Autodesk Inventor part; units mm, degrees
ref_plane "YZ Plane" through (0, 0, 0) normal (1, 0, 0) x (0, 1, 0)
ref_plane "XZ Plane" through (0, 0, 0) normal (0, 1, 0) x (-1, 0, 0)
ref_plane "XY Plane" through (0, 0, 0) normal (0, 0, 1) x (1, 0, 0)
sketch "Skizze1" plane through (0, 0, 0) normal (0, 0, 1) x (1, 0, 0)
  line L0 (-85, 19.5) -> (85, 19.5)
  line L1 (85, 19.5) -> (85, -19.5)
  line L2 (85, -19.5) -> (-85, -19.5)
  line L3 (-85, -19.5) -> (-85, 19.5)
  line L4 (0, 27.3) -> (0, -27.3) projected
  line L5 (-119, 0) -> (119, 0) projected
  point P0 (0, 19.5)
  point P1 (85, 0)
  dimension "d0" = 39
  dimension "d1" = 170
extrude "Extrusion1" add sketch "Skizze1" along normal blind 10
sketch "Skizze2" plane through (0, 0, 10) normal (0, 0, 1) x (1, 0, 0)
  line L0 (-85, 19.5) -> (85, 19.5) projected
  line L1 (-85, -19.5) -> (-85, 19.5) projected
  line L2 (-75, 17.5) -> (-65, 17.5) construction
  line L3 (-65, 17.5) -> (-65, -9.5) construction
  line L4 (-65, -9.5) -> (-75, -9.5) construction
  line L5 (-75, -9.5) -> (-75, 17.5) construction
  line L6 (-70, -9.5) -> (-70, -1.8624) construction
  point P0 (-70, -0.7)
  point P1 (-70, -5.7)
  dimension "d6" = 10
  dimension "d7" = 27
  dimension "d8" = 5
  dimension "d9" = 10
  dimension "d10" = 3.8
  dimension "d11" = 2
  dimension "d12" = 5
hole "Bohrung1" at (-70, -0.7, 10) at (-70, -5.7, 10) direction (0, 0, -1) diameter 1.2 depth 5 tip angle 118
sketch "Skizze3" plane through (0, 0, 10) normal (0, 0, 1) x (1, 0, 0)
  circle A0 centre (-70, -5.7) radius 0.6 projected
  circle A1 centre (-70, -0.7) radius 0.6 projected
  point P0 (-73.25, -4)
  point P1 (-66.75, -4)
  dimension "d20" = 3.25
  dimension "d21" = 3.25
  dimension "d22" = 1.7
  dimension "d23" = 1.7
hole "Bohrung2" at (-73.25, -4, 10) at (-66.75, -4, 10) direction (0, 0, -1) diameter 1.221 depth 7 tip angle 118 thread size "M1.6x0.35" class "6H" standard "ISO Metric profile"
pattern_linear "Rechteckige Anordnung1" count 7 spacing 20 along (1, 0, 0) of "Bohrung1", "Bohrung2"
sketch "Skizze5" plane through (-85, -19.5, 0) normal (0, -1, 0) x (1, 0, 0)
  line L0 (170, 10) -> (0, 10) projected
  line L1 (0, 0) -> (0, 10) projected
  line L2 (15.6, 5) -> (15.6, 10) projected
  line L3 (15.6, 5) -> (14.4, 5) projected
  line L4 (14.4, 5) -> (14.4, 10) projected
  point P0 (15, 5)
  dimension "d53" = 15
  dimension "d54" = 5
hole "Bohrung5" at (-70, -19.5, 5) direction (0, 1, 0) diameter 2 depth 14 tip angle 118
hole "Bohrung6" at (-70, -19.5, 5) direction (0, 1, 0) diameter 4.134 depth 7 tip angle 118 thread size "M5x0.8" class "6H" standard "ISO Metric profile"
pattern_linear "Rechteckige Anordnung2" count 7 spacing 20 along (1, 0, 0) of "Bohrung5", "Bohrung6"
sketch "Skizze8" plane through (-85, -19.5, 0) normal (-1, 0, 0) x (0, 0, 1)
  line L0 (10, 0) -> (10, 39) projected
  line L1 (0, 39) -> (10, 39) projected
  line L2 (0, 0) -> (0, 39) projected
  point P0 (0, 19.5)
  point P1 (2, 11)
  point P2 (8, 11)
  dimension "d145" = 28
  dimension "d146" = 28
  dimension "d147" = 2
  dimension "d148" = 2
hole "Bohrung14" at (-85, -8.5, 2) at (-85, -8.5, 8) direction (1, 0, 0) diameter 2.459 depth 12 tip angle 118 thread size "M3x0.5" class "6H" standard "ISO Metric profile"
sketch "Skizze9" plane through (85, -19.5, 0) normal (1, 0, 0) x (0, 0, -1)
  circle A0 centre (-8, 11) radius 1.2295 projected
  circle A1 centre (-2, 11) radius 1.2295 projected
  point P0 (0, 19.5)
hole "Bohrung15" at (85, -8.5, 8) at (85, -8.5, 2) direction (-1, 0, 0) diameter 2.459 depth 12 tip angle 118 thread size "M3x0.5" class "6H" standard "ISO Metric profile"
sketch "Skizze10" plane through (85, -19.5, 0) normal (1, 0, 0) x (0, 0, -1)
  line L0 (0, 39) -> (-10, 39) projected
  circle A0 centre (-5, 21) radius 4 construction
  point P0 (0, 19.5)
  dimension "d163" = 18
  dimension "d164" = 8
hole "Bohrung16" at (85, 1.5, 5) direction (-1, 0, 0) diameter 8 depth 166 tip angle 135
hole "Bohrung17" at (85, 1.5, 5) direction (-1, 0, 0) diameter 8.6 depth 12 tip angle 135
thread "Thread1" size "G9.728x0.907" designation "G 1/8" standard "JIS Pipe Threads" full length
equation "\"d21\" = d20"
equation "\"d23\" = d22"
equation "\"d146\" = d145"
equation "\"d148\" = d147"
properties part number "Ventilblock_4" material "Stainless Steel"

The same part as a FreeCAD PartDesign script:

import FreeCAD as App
import Part
import Sketcher

V = App.Vector

doc = App.newDocument("Part")
body = doc.addObject("PartDesign::Body", "Body")

# Sketch on XY plane
sketch1 = doc.addObject("Sketcher::SketchObject", "Sketch")
body.addObject(sketch1)
sketch1.AttachmentSupport = (doc.XY_Plane, [""])
sketch1.MapMode = "FlatFace"
sketch1.addGeometry(Part.LineSegment(V(-85, 20, 0), V(-85, -20, 0)), False)
sketch1.addGeometry(Part.LineSegment(V(-85, -20, 0), V(85, -20, 0)), False)
sketch1.addGeometry(Part.LineSegment(V(85, -20, 0), V(85, 20, 0)), False)
sketch1.addGeometry(Part.LineSegment(V(85, 20, 0), V(-85, 20, 0)), False)
sketch1.addConstraint(Sketcher.Constraint("Coincident", 0, 2, 1, 1))
sketch1.addConstraint(Sketcher.Constraint("Coincident", 1, 2, 2, 1))
sketch1.addConstraint(Sketcher.Constraint("Coincident", 2, 2, 3, 1))
sketch1.addConstraint(Sketcher.Constraint("Coincident", 3, 2, 0, 1))
sketch1.addConstraint(Sketcher.Constraint("Vertical", 0))
sketch1.addConstraint(Sketcher.Constraint("Horizontal", 1))
sketch1.addConstraint(Sketcher.Constraint("Vertical", 2))
sketch1.addConstraint(Sketcher.Constraint("Horizontal", 3))
sketch1.addConstraint(Sketcher.Constraint("Symmetric", 0, 2, 2, 2, -1, 1))
sketch1.addConstraint(Sketcher.Constraint("DistanceX", 1, 1, 1, 2, 170.0))
sketch1.addConstraint(Sketcher.Constraint("DistanceY", 0, 2, 0, 1, 39.0))
pad1 = doc.addObject("PartDesign::Pad", "Pad")
body.addObject(pad1)
pad1.Profile = sketch1
pad1.Length = 10

# Sketch on XY plane
sketch2 = doc.addObject("Sketcher::SketchObject", "Sketch001")
body.addObject(sketch2)
sketch2.AttachmentSupport = (doc.XY_Plane, [""])
sketch2.MapMode = "FlatFace"
sketch2.AttachmentOffset = App.Placement(V(0, 0, 10), App.Rotation())
sketch2.addGeometry(Part.Circle(V(-70, -0.7, 0), V(0, 0, 1), 0.6), False)
sketch2.addGeometry(Part.Circle(V(-70, -5.7, 0), V(0, 0, 1), 0.6), False)
sketch2.addConstraint(Sketcher.Constraint("Equal", 0, 1))
sketch2.addConstraint(Sketcher.Constraint("Vertical", 0, 3, 1, 3))
sketch2.addConstraint(Sketcher.Constraint("Diameter", 0, 1.2))
sketch2.addConstraint(Sketcher.Constraint("DistanceX", 0, 3, -1, 1, 70.0))
sketch2.addConstraint(Sketcher.Constraint("DistanceY", 1, 3, 0, 3, 5.0))
sketch2.addConstraint(Sketcher.Constraint("DistanceY", 0, 3, -1, 1, 0.7))
doc.recompute()
hole = doc.addObject("PartDesign::Hole", "Hole")
body.addObject(hole)
hole.Profile = sketch2
hole.ThreadType = "None"
hole.Diameter = 1.2
hole.DepthType = "Dimension"
hole.Depth = 5
hole.DrillPoint = "Angled"
hole.DrillPointAngle = 118

# Sketch on XY plane
sketch3 = doc.addObject("Sketcher::SketchObject", "Sketch002")
body.addObject(sketch3)
sketch3.AttachmentSupport = (doc.XY_Plane, [""])
sketch3.MapMode = "FlatFace"
sketch3.AttachmentOffset = App.Placement(V(0, 0, 10), App.Rotation())
sketch3.addGeometry(Part.Circle(V(-73.2, -4, 0), V(0, 0, 1), 0.6), False)
sketch3.addGeometry(Part.Circle(V(-66.8, -4, 0), V(0, 0, 1), 0.6), False)
sketch3.addConstraint(Sketcher.Constraint("Equal", 0, 1))
sketch3.addConstraint(Sketcher.Constraint("Horizontal", 0, 3, 1, 3))
sketch3.addConstraint(Sketcher.Constraint("Diameter", 0, 1.221))
sketch3.addConstraint(Sketcher.Constraint("DistanceY", 0, 3, -1, 1, 4.0))
sketch3.addConstraint(Sketcher.Constraint("DistanceX", 0, 3, 1, 3, 6.5))
sketch3.addConstraint(Sketcher.Constraint("DistanceX", 0, 3, -1, 1, 73.25))
doc.recompute()
hole2 = doc.addObject("PartDesign::Hole", "Hole001")
body.addObject(hole2)
hole2.Profile = sketch3
hole2.ThreadType = "None"
hole2.Diameter = 1.221
hole2.DepthType = "Dimension"
hole2.Depth = 7
hole2.DrillPoint = "Angled"
hole2.DrillPointAngle = 118
doc.recompute()

linearpattern = doc.addObject("PartDesign::LinearPattern", "LinearPattern")
body.addObject(linearpattern)
linearpattern.Originals = [hole, hole2]
linearpattern.Direction = (doc.X_Axis, [""])
linearpattern.Mode = "offset"
linearpattern.Offset = 20
linearpattern.Occurrences = 7
body.Tip = linearpattern

# Sketch on XZ plane
sketch4 = doc.addObject("Sketcher::SketchObject", "Sketch003")
body.addObject(sketch4)
sketch4.AttachmentSupport = (doc.XZ_Plane, [""])
sketch4.MapMode = "FlatFace"
sketch4.AttachmentOffset = App.Placement(V(0, 0, 19.5), App.Rotation())
sketch4.addGeometry(Part.Circle(V(-70, 5, 0), V(0, 0, 1), 1), False)
sketch4.addConstraint(Sketcher.Constraint("Diameter", 0, 2.0))
sketch4.addConstraint(Sketcher.Constraint("DistanceX", 0, 3, -1, 1, 70.0))
sketch4.addConstraint(Sketcher.Constraint("DistanceY", -1, 1, 0, 3, 5.0))
doc.recompute()
hole3 = doc.addObject("PartDesign::Hole", "Hole002")
body.addObject(hole3)
hole3.Profile = sketch4
hole3.ThreadType = "None"
hole3.Diameter = 2
hole3.DepthType = "Dimension"
hole3.Depth = 14
hole3.DrillPoint = "Angled"
hole3.DrillPointAngle = 118

# Sketch on XZ plane
sketch5 = doc.addObject("Sketcher::SketchObject", "Sketch004")
body.addObject(sketch5)
sketch5.AttachmentSupport = (doc.XZ_Plane, [""])
sketch5.MapMode = "FlatFace"
sketch5.AttachmentOffset = App.Placement(V(0, 0, 19.5), App.Rotation())
sketch5.addGeometry(Part.Circle(V(-70, 5, 0), V(0, 0, 1), 2.1), False)
sketch5.addConstraint(Sketcher.Constraint("Diameter", 0, 4.134))
sketch5.addConstraint(Sketcher.Constraint("DistanceX", 0, 3, -1, 1, 70.0))
sketch5.addConstraint(Sketcher.Constraint("DistanceY", -1, 1, 0, 3, 5.0))
doc.recompute()
hole4 = doc.addObject("PartDesign::Hole", "Hole003")
body.addObject(hole4)
hole4.Profile = sketch5
hole4.ThreadType = "None"
hole4.Diameter = 4.134
hole4.DepthType = "Dimension"
hole4.Depth = 7
hole4.DrillPoint = "Angled"
hole4.DrillPointAngle = 118
doc.recompute()

linearpattern2 = doc.addObject("PartDesign::LinearPattern", "LinearPattern001")
body.addObject(linearpattern2)
linearpattern2.Originals = [hole3, hole4]
linearpattern2.Direction = (doc.X_Axis, [""])
linearpattern2.Mode = "offset"
linearpattern2.Offset = 20
linearpattern2.Occurrences = 7
body.Tip = linearpattern2

# Sketch on YZ plane
sketch6 = doc.addObject("Sketcher::SketchObject", "Sketch005")
body.addObject(sketch6)
sketch6.AttachmentSupport = (doc.YZ_Plane, [""])
sketch6.MapMode = "FlatFace"
sketch6.AttachmentOffset = App.Placement(V(0, 0, -85), App.Rotation())
sketch6.addGeometry(Part.Circle(V(-8.5, 2, 0), V(0, 0, 1), 1.2), False)
sketch6.addGeometry(Part.Circle(V(-8.5, 8, 0), V(0, 0, 1), 1.2), False)
sketch6.addConstraint(Sketcher.Constraint("Equal", 0, 1))
sketch6.addConstraint(Sketcher.Constraint("Vertical", 0, 3, 1, 3))
sketch6.addConstraint(Sketcher.Constraint("Diameter", 0, 2.459))
sketch6.addConstraint(Sketcher.Constraint("DistanceY", -1, 1, 0, 3, 2.0))
sketch6.addConstraint(Sketcher.Constraint("DistanceY", -1, 1, 1, 3, 8.0))
sketch6.addConstraint(Sketcher.Constraint("DistanceX", 0, 3, -1, 1, 8.5))
doc.recompute()
hole5 = doc.addObject("PartDesign::Hole", "Hole004")
body.addObject(hole5)
hole5.Profile = sketch6
hole5.ThreadType = "None"
hole5.Diameter = 2.459
hole5.DepthType = "Dimension"
hole5.Depth = 12
hole5.DrillPoint = "Angled"
hole5.DrillPointAngle = 118
hole5.Reversed = True

# Sketch on YZ plane
sketch7 = doc.addObject("Sketcher::SketchObject", "Sketch006")
body.addObject(sketch7)
sketch7.AttachmentSupport = (doc.YZ_Plane, [""])
sketch7.MapMode = "FlatFace"
sketch7.AttachmentOffset = App.Placement(V(0, 0, 85), App.Rotation())
sketch7.addGeometry(Part.Circle(V(-8.5, 8, 0), V(0, 0, 1), 1.2), False)
sketch7.addGeometry(Part.Circle(V(-8.5, 2, 0), V(0, 0, 1), 1.2), False)
sketch7.addConstraint(Sketcher.Constraint("Equal", 0, 1))
sketch7.addConstraint(Sketcher.Constraint("Vertical", 0, 3, 1, 3))
sketch7.addConstraint(Sketcher.Constraint("Diameter", 0, 2.459))
sketch7.addConstraint(Sketcher.Constraint("DistanceY", -1, 1, 0, 3, 8.0))
sketch7.addConstraint(Sketcher.Constraint("DistanceY", -1, 1, 1, 3, 2.0))
sketch7.addConstraint(Sketcher.Constraint("DistanceX", 0, 3, -1, 1, 8.5))
doc.recompute()
hole6 = doc.addObject("PartDesign::Hole", "Hole005")
body.addObject(hole6)
hole6.Profile = sketch7
hole6.ThreadType = "None"
hole6.Diameter = 2.459
hole6.DepthType = "Dimension"
hole6.Depth = 12
hole6.DrillPoint = "Angled"
hole6.DrillPointAngle = 118

# Sketch on YZ plane
sketch8 = doc.addObject("Sketcher::SketchObject", "Sketch007")
body.addObject(sketch8)
sketch8.AttachmentSupport = (doc.YZ_Plane, [""])
sketch8.MapMode = "FlatFace"
sketch8.AttachmentOffset = App.Placement(V(0, 0, 85), App.Rotation())
sketch8.addGeometry(Part.Circle(V(1.5, 5, 0), V(0, 0, 1), 4), False)
sketch8.addConstraint(Sketcher.Constraint("Diameter", 0, 8.0))
sketch8.addConstraint(Sketcher.Constraint("DistanceY", -1, 1, 0, 3, 5.0))
sketch8.addConstraint(Sketcher.Constraint("DistanceX", -1, 1, 0, 3, 1.5))
doc.recompute()
hole7 = doc.addObject("PartDesign::Hole", "Hole006")
body.addObject(hole7)
hole7.Profile = sketch8
hole7.ThreadType = "None"
hole7.Diameter = 8
hole7.DepthType = "Dimension"
hole7.Depth = 166
hole7.DrillPoint = "Angled"
hole7.DrillPointAngle = 135

# Sketch on YZ plane
sketch9 = doc.addObject("Sketcher::SketchObject", "Sketch008")
body.addObject(sketch9)
sketch9.AttachmentSupport = (doc.YZ_Plane, [""])
sketch9.MapMode = "FlatFace"
sketch9.AttachmentOffset = App.Placement(V(0, 0, 85), App.Rotation())
sketch9.addGeometry(Part.Circle(V(1.5, 5, 0), V(0, 0, 1), 4.3), False)
sketch9.addConstraint(Sketcher.Constraint("Diameter", 0, 8.6))
sketch9.addConstraint(Sketcher.Constraint("DistanceY", -1, 1, 0, 3, 5.0))
sketch9.addConstraint(Sketcher.Constraint("DistanceX", -1, 1, 0, 3, 1.5))
doc.recompute()
hole8 = doc.addObject("PartDesign::Hole", "Hole007")
body.addObject(hole8)
hole8.Profile = sketch9
hole8.ThreadType = "None"
hole8.Diameter = 8.6
hole8.DepthType = "Dimension"
hole8.Depth = 12
hole8.DrillPoint = "Angled"
hole8.DrillPointAngle = 135

doc.recompute()
